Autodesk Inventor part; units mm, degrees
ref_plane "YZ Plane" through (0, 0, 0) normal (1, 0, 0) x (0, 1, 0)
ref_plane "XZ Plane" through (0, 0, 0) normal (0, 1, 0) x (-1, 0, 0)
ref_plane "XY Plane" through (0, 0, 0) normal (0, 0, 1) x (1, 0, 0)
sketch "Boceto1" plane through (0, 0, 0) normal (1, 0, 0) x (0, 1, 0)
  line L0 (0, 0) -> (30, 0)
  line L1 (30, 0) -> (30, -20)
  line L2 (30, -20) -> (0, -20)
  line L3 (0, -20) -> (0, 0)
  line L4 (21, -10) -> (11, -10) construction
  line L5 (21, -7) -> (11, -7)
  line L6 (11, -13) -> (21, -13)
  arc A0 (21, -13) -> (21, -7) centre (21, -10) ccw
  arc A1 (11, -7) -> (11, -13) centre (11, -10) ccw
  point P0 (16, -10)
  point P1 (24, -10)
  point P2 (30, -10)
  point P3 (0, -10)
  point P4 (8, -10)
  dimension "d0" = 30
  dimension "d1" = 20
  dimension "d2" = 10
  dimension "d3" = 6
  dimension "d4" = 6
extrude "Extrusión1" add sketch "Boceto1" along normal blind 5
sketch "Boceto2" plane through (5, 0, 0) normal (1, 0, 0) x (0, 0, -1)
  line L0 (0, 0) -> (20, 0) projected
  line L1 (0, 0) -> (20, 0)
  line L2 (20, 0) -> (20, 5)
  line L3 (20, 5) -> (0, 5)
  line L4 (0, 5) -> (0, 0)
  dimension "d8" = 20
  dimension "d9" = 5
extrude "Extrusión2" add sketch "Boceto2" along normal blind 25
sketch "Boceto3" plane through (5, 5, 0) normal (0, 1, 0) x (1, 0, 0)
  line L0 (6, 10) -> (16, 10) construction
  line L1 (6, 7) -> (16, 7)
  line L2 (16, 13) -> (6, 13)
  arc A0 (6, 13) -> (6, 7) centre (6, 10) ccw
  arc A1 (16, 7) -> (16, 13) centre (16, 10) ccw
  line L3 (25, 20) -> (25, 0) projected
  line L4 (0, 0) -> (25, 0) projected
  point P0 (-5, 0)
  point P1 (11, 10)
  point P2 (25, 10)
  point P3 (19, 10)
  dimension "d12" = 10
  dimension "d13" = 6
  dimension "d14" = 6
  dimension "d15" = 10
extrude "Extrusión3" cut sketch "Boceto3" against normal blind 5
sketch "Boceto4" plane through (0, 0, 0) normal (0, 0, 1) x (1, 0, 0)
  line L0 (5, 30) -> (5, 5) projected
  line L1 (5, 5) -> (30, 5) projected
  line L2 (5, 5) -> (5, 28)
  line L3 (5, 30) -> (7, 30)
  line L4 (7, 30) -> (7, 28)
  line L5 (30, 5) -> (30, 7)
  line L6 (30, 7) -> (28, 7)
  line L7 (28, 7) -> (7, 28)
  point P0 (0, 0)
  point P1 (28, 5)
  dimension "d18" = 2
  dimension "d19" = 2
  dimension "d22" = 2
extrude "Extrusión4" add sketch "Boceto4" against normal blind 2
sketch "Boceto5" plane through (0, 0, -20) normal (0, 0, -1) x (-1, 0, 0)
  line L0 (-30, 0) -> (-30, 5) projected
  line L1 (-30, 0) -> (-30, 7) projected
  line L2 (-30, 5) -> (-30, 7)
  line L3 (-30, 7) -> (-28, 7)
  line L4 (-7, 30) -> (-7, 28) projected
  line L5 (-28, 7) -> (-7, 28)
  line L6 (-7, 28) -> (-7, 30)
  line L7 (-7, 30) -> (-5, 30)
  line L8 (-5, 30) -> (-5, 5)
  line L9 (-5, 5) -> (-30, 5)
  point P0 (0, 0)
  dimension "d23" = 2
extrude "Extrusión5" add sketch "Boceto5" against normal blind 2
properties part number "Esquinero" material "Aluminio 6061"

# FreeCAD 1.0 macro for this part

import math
import FreeCAD as App
import Part
import Sketcher
from FreeCAD import Vector
Q = App.Units.Quantity


def add_polygon(sketch, points):
    """Adds a closed chain of lines whose ends are joined by coincident constraints."""
    first, n = sketch.GeometryCount, len(points)
    for a, b in zip(points, points[1:] + points[:1]):
        sketch.addGeometry(Part.LineSegment(App.Vector(*a, 0), App.Vector(*b, 0)), False)
    for i in range(n):
        sketch.addConstraint(Sketcher.Constraint("Coincident", first + i, 2, first + (i + 1) % n, 1))

doc = App.newDocument("Part")
body = doc.addObject("PartDesign::Body", "Body")

# Sketch on YZ plane
sketch1 = doc.addObject("Sketcher::SketchObject", "Sketch")
body.addObject(sketch1)
sketch1.AttachmentSupport = (doc.YZ_Plane, [""])
sketch1.MapMode = "FlatFace"
add_polygon(sketch1, [(30, 0), (0, 0), (0, -20), (30, -20)])  # lines 0-3
sketch1.addGeometry(Part.LineSegment(Vector(11, -7, 0), Vector(21, -7, 0)), False)  # 4
sketch1.addGeometry(Part.ArcOfCircle(Part.Circle(Vector(21, -10, 0), Vector(0, 0, 1), 3), math.radians(-90), math.radians(90)), False)  # 5
sketch1.addGeometry(Part.LineSegment(Vector(21, -13, 0), Vector(11, -13, 0)), False)  # 6
sketch1.addGeometry(Part.ArcOfCircle(Part.Circle(Vector(11, -10, 0), Vector(0, 0, 1), 3), math.radians(90), math.radians(270)), False)  # 7
sketch1.addConstraint([
    Sketcher.Constraint("Tangent", 4, 2, 5, 2),
    Sketcher.Constraint("Tangent", 5, 1, 6, 1),
    Sketcher.Constraint("Tangent", 6, 2, 7, 2),
    Sketcher.Constraint("Tangent", 7, 1, 4, 1),
    Sketcher.Constraint("Horizontal", 0),
    Sketcher.Constraint("Vertical", 1),
    Sketcher.Constraint("Horizontal", 2),
    Sketcher.Constraint("Vertical", 3),
    Sketcher.Constraint("Horizontal", 4),
    Sketcher.Constraint("Horizontal", 6),
    Sketcher.Constraint("Coincident", 0, 2, -1, 1),
    Sketcher.Constraint("Radius", 5, Q("3 mm")),
    Sketcher.Constraint("DistanceX", 0, 2, 0, 1, Q("30 mm")),
    Sketcher.Constraint("DistanceX", 4, 1, 4, 2, Q("10 mm")),
    Sketcher.Constraint("DistanceY", 1, 2, 1, 1, Q("20 mm")),
    Sketcher.Constraint("DistanceY", 5, 3, -1, 1, Q("10 mm")),
    Sketcher.Constraint("DistanceX", -1, 1, 5, 3, Q("21 mm")),
])
pad1 = doc.addObject("PartDesign::Pad", "Pad")
body.addObject(pad1)
pad1.Profile = sketch1
pad1.Length = 5

# Sketch on YZ plane
sketch2 = doc.addObject("Sketcher::SketchObject", "Sketch001")
body.addObject(sketch2)
sketch2.AttachmentSupport = (doc.YZ_Plane, [""])
sketch2.MapMode = "FlatFace"
sketch2.AttachmentOffset = App.Placement(Vector(0, 0, 5), App.Rotation())
add_polygon(sketch2, [(5, 0), (0, 0), (0, -20), (5, -20)])  # lines 0-3
sketch2.addConstraint([
    Sketcher.Constraint("Horizontal", 0),
    Sketcher.Constraint("Vertical", 1),
    Sketcher.Constraint("Horizontal", 2),
    Sketcher.Constraint("Vertical", 3),
    Sketcher.Constraint("Coincident", 0, 2, -1, 1),
    Sketcher.Constraint("DistanceX", 0, 2, 0, 1, Q("5 mm")),
    Sketcher.Constraint("DistanceY", 1, 2, 1, 1, Q("20 mm")),
])
pad2 = doc.addObject("PartDesign::Pad", "Pad001")
body.addObject(pad2)
pad2.Profile = sketch2
pad2.Length = 25

# Sketch on XZ plane
sketch3 = doc.addObject("Sketcher::SketchObject", "Sketch002")
body.addObject(sketch3)
sketch3.AttachmentSupport = (doc.XZ_Plane, [""])
sketch3.MapMode = "FlatFace"
sketch3.AttachmentOffset = App.Placement(Vector(0, 0, -5), App.Rotation())
sketch3.addGeometry([
    Part.ArcOfCircle(Part.Circle(Vector(11, -10, 0), Vector(0, 0, 1), 3), math.radians(90), math.radians(270)),
    Part.LineSegment(Vector(11, -7, 0), Vector(21, -7, 0)),
    Part.ArcOfCircle(Part.Circle(Vector(21, -10, 0), Vector(0, 0, 1), 3), math.radians(-90), math.radians(90)),
    Part.LineSegment(Vector(21, -13, 0), Vector(11, -13, 0)),
], False)
sketch3.addConstraint([
    Sketcher.Constraint("Tangent", 0, 1, 1, 1),
    Sketcher.Constraint("Tangent", 1, 2, 2, 2),
    Sketcher.Constraint("Tangent", 2, 1, 3, 1),
    Sketcher.Constraint("Tangent", 3, 2, 0, 2),
    Sketcher.Constraint("Horizontal", 1),
    Sketcher.Constraint("Horizontal", 3),
    Sketcher.Constraint("Radius", 0, Q("3 mm")),
    Sketcher.Constraint("DistanceX", 1, 1, 1, 2, Q("10 mm")),
    Sketcher.Constraint("DistanceY", 0, 3, -1, 1, Q("10 mm")),
    Sketcher.Constraint("DistanceX", -1, 1, 0, 3, Q("11 mm")),
])
pocket1 = doc.addObject("PartDesign::Pocket", "Pocket")
body.addObject(pocket1)
pocket1.Profile = sketch3
pocket1.Length = 5
pocket1.Reversed = True

# Sketch on XY plane
sketch4 = doc.addObject("Sketcher::SketchObject", "Sketch003")
body.addObject(sketch4)
sketch4.AttachmentSupport = (doc.XY_Plane, [""])
sketch4.MapMode = "FlatFace"
add_polygon(sketch4, [(7, 30), (5, 30), (5, 5), (30, 5), (30, 7), (28, 7), (7, 28)])  # lines 0-6
sketch4.addConstraint([
    Sketcher.Constraint("Horizontal", 0),
    Sketcher.Constraint("Vertical", 1),
    Sketcher.Constraint("Horizontal", 2),
    Sketcher.Constraint("Vertical", 3),
    Sketcher.Constraint("Horizontal", 4),
    Sketcher.Constraint("Vertical", 6),
    Sketcher.Constraint("Equal", 0, 4),
    Sketcher.Constraint("Equal", 2, 1),
    Sketcher.Constraint("Equal", 4, 3),
    Sketcher.Constraint("Equal", 3, 6),
    Sketcher.Constraint("DistanceX", 0, 2, 0, 1, Q("2 mm")),
    Sketcher.Constraint("DistanceX", 2, 1, 2, 2, Q("25 mm")),
    Sketcher.Constraint("DistanceX", -1, 1, 0, 2, Q("5 mm")),
    Sketcher.Constraint("DistanceY", -1, 1, 0, 2, Q("30 mm")),
])
pad3 = doc.addObject("PartDesign::Pad", "Pad002")
body.addObject(pad3)
pad3.Profile = sketch4
pad3.Length = 2
pad3.Reversed = True

# Sketch on XY plane
sketch5 = doc.addObject("Sketcher::SketchObject", "Sketch004")
body.addObject(sketch5)
sketch5.AttachmentSupport = (doc.XY_Plane, [""])
sketch5.MapMode = "FlatFace"
sketch5.AttachmentOffset = App.Placement(Vector(0, 0, -20), App.Rotation())
add_polygon(sketch5, [(30, 7), (30, 5), (5, 5), (5, 30), (7, 30), (7, 28), (28, 7)])  # lines 0-6
sketch5.addConstraint([
    Sketcher.Constraint("Vertical", 0),
    Sketcher.Constraint("Horizontal", 1),
    Sketcher.Constraint("Vertical", 2),
    Sketcher.Constraint("Horizontal", 3),
    Sketcher.Constraint("Vertical", 4),
    Sketcher.Constraint("Horizontal", 6),
    Sketcher.Constraint("Equal", 3, 6),
    Sketcher.Constraint("Equal", 6, 0),
    Sketcher.Constraint("Equal", 1, 2),
    Sketcher.Constraint("Equal", 0, 4),
    Sketcher.Constraint("DistanceX", 3, 1, 3, 2, Q("2 mm")),
    Sketcher.Constraint("DistanceX", 1, 2, 1, 1, Q("25 mm")),
    Sketcher.Constraint("DistanceX", -1, 1, 0, 2, Q("30 mm")),
    Sketcher.Constraint("DistanceY", -1, 1, 0, 2, Q("5 mm")),
])
pad4 = doc.addObject("PartDesign::Pad", "Pad003")
body.addObject(pad4)
pad4.Profile = sketch5
pad4.Length = 2

doc.recompute()
